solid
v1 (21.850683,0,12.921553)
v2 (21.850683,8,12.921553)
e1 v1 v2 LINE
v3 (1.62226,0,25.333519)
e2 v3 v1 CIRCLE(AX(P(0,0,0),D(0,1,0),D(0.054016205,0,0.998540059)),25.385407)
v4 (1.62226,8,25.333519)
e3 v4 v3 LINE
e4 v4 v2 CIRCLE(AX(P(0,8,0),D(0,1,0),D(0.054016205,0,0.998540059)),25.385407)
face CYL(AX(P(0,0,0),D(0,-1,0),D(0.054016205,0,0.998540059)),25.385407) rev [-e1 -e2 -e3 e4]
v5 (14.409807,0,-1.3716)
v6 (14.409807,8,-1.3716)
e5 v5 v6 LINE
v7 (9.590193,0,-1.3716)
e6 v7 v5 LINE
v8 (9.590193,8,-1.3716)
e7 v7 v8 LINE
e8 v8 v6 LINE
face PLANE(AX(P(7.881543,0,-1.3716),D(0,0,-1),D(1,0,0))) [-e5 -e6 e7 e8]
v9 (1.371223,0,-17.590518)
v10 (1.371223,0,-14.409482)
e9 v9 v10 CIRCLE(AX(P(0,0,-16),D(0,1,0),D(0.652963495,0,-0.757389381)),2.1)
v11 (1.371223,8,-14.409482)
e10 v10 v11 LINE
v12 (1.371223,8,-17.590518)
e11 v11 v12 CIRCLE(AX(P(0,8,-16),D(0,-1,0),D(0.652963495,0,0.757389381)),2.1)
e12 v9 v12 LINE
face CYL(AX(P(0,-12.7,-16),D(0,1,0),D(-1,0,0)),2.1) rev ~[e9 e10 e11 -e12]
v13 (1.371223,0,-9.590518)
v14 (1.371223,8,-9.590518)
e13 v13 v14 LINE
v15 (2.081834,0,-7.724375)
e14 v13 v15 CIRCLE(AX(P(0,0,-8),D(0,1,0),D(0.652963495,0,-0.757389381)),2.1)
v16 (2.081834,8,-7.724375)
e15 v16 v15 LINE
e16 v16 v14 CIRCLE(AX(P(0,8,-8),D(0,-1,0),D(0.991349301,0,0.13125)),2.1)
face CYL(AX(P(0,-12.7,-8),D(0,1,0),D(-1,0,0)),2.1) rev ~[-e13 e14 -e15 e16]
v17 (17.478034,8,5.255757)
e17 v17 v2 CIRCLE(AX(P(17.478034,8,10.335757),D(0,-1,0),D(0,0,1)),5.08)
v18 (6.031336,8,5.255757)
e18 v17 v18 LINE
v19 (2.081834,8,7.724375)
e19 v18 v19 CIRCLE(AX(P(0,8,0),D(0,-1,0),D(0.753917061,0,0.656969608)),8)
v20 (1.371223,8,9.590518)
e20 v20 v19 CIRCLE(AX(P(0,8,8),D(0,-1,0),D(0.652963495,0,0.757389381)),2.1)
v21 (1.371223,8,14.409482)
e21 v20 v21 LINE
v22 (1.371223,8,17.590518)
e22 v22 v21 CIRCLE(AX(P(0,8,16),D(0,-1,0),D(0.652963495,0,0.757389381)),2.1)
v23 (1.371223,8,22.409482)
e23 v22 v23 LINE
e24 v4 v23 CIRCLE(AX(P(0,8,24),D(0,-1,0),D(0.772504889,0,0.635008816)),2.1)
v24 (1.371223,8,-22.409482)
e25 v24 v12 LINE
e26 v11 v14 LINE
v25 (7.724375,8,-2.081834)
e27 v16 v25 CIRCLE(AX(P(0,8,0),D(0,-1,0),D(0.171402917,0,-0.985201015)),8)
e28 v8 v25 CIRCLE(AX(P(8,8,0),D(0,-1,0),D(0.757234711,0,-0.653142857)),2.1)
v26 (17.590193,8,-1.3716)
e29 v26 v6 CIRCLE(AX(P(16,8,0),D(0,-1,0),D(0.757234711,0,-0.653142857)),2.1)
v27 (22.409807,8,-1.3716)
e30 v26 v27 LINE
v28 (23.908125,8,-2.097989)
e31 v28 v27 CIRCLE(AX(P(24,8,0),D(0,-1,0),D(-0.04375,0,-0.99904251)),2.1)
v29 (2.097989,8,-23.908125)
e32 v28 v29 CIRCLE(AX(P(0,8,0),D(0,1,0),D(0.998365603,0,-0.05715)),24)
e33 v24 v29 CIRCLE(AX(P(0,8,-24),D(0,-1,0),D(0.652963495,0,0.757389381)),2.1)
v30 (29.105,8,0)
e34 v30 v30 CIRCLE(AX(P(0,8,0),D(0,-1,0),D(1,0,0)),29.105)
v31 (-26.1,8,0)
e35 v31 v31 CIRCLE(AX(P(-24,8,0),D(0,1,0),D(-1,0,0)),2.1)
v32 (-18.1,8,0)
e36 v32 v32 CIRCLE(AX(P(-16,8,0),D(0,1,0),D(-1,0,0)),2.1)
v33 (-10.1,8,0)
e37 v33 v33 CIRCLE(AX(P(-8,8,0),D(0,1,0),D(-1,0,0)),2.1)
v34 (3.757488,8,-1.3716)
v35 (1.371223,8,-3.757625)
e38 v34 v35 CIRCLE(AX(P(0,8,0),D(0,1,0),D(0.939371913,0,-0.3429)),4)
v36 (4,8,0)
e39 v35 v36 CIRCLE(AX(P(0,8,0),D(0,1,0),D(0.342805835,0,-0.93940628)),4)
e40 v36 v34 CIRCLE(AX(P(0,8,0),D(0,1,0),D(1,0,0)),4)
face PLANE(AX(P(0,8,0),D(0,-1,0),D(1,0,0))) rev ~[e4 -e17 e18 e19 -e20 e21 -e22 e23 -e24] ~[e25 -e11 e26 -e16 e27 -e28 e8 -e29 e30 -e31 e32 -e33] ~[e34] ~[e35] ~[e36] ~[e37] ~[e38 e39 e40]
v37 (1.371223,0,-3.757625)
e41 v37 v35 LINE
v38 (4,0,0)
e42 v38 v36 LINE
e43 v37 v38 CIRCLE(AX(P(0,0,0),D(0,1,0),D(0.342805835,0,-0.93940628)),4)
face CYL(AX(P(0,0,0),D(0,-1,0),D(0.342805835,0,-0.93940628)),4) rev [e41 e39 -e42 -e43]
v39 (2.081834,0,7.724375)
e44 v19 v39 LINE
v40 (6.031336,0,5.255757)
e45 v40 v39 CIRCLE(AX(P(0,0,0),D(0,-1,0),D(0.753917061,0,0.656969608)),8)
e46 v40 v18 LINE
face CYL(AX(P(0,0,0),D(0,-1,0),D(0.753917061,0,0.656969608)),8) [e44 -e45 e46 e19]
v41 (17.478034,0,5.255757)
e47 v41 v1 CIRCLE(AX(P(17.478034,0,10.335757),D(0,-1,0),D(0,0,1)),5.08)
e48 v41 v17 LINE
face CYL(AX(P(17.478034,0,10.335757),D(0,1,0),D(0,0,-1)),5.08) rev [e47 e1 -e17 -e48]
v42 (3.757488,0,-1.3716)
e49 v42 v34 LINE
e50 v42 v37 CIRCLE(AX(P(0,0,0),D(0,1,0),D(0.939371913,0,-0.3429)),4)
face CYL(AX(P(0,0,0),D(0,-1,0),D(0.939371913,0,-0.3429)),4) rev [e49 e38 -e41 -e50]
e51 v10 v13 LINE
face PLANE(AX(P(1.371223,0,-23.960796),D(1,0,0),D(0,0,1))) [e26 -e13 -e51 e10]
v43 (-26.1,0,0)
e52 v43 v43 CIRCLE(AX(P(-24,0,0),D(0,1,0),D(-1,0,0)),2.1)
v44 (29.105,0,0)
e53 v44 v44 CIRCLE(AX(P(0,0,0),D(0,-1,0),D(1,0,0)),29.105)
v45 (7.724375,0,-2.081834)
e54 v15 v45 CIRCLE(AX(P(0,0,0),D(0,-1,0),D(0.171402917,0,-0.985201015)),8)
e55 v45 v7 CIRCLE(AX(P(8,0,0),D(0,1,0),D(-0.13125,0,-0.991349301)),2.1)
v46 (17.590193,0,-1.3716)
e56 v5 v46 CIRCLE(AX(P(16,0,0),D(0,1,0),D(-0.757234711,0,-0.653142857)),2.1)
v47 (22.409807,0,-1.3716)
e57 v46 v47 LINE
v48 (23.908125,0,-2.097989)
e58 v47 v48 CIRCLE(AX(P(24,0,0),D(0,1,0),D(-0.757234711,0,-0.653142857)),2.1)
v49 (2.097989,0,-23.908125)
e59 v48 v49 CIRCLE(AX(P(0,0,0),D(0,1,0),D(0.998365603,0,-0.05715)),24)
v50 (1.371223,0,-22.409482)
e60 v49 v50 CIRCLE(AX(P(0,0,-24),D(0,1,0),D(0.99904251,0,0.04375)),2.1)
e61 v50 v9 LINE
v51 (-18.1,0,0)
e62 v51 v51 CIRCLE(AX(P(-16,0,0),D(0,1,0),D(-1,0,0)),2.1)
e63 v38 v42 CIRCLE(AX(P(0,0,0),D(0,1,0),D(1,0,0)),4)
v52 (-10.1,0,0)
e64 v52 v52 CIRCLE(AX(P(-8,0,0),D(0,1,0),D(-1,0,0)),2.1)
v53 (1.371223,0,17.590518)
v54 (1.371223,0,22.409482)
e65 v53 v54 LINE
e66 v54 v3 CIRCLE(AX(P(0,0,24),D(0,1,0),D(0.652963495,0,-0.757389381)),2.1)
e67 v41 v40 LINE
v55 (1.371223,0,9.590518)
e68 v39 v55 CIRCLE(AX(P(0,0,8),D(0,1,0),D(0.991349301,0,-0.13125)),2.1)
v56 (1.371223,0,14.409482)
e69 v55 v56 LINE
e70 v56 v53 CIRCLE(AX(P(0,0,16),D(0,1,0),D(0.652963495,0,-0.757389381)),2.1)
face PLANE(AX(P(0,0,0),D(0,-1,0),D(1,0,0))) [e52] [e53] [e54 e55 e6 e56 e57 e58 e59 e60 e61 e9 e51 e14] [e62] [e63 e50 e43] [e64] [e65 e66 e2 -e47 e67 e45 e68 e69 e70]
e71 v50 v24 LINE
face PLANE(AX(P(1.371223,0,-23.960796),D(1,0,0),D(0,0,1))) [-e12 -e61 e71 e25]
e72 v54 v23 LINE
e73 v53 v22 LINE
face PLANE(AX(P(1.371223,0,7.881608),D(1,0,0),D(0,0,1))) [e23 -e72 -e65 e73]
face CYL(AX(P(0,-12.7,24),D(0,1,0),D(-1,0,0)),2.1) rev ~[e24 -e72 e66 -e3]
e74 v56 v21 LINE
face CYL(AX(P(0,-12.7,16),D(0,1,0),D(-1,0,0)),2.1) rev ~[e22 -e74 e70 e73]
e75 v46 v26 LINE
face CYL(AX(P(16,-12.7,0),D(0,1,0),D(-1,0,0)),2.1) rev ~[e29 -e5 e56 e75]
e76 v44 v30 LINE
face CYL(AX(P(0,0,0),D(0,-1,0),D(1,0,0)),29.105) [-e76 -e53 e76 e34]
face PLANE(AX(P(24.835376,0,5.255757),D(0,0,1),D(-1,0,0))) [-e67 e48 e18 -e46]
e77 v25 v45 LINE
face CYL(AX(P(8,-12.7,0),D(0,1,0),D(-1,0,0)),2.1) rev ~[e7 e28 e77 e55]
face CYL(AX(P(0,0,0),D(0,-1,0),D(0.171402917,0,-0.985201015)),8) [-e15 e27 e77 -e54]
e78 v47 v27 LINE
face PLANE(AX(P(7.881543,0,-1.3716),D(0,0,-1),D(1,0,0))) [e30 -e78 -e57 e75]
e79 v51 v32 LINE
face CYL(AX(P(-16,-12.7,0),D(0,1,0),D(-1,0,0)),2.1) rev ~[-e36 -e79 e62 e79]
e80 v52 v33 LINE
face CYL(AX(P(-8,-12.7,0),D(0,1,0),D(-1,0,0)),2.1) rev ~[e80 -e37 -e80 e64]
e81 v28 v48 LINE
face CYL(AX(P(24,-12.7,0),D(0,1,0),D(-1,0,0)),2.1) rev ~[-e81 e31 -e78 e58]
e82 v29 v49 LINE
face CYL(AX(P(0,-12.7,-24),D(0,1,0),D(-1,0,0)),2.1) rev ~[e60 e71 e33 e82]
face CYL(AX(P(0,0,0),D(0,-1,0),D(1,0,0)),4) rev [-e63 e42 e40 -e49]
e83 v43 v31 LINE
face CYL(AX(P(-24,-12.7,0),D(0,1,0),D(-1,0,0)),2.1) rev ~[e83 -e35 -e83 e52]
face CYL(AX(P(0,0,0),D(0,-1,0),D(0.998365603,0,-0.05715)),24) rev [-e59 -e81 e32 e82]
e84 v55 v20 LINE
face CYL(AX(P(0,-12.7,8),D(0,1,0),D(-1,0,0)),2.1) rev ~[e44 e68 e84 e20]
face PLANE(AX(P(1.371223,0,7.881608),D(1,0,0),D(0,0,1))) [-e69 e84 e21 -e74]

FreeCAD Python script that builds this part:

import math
import FreeCAD as App
import Part
import Sketcher
Q = App.Units.Quantity


def edges_at(feature, points):
    """Names of the edges that pass closest to the given points."""
    edges = feature.Shape.Edges
    near = lambda p: min(range(len(edges)), key=lambda i: edges[i].distToShape(Part.Vertex(*p))[0])
    return sorted({f"Edge{near(p) + 1}" for p in points})

doc = App.newDocument("Part")
params = doc.addObject("Spreadsheet::Sheet", "Params")
for row, (alias, value) in enumerate([
    ("sketch1_radius", "8 mm"),
    ("sketch1_radius2", "24 mm"),
    ("sketch1_radius3", "4 mm"),
    ("sketch1_diameter", "58.21 mm"),
    ("pad1_length", "8 mm"),
    ("sketch2_diameter", "4.2 mm"),
    ("hole_diameter", "4.2 mm"),
    ("hole_depth", "12.7 mm"),
    ("fillet_radius", "5.08 mm"),
], start=1):
    params.set(f"A{row}", alias)
    params.set(f"B{row}", "=" + value)
    params.setAlias(f"B{row}", alias)

body = doc.addObject("PartDesign::Body", "Body")

sketch1 = body.newObject("Sketcher::SketchObject", "Sketch")
sketch1.AttachmentSupport = (doc.getObject("XZ_Plane"), [""])
sketch1.MapMode = "FlatFace"
sketch1.addGeometry([
    Part.Circle(App.Vector(0, 0, 0), App.Vector(0, 0, 1), 29.105),
    Part.LineSegment(App.Vector(1.371223, -23.960796, 0), App.Vector(1.371223, -7.881608, 0)),
    Part.ArcOfCircle(Part.Circle(App.Vector(0, 0, 0), App.Vector(0, 0, 1), 8), math.radians(-80.130602), math.radians(-9.872136)),
    Part.LineSegment(App.Vector(7.881543, -1.3716, 0), App.Vector(23.960774, -1.3716, 0)),
    Part.ArcOfCircle(Part.Circle(App.Vector(0, 0, 0), App.Vector(0, 0, 1), 24), math.radians(-86.724662), math.radians(-3.276239)),
    Part.ArcOfCircle(Part.Circle(App.Vector(0, 0, 0), App.Vector(0, 0, 1), 4), math.radians(0), math.radians(290.047913)),
    Part.ArcOfCircle(Part.Circle(App.Vector(0, 0, 0), App.Vector(0, 0, 1), 4), math.radians(-20.053657), math.radians(0)),
    Part.ArcOfCircle(Part.Circle(App.Vector(0, 0, 0), App.Vector(0, 0, 1), 4), math.radians(-69.952087), math.radians(-20.053657)),
    Part.LineSegment(App.Vector(1.371223, 7.881608, 0), App.Vector(1.371223, 25.348346, 0)),
    Part.ArcOfCircle(Part.Circle(App.Vector(0, 0, 0), App.Vector(0, 0, 1), 25.385407), math.radians(11.948858), math.radians(86.903592)),
    Part.LineSegment(App.Vector(24.835376, 5.255757, 0), App.Vector(6.031336, 5.255757, 0)),
    Part.ArcOfCircle(Part.Circle(App.Vector(0, 0, 0), App.Vector(0, 0, 1), 8), math.radians(41.069165), math.radians(80.130602)),
], False)
sketch1.addConstraint([
    Sketcher.Constraint("Coincident", 1, 2, 2, 1),
    Sketcher.Constraint("Coincident", 2, 2, 3, 1),
    Sketcher.Constraint("Coincident", 3, 2, 4, 2),
    Sketcher.Constraint("Coincident", 4, 1, 1, 1),
    Sketcher.Constraint("Tangent", 5, 1, 6, 2),
    Sketcher.Constraint("Tangent", 6, 1, 7, 2),
    Sketcher.Constraint("Tangent", 7, 1, 5, 2),
    Sketcher.Constraint("Coincident", 8, 2, 9, 2),
    Sketcher.Constraint("Coincident", 9, 1, 10, 1),
    Sketcher.Constraint("Coincident", 10, 2, 11, 1),
    Sketcher.Constraint("Coincident", 11, 2, 8, 1),
    Sketcher.Constraint("Vertical", 1),
    Sketcher.Constraint("Horizontal", 3),
    Sketcher.Constraint("Vertical", 8),
    Sketcher.Constraint("Horizontal", 10),
    Sketcher.Constraint("Coincident", 0, 3, -1, 1),
    Sketcher.Constraint("Coincident", 2, 3, -1, 1),
    Sketcher.Constraint("Coincident", 4, 3, -1, 1),
    Sketcher.Constraint("Coincident", 5, 3, -1, 1),
    Sketcher.Constraint("Coincident", 9, 3, -1, 1),
    Sketcher.Constraint("Coincident", 11, 3, -1, 1),
    Sketcher.Constraint("Equal", 2, 11),
    Sketcher.Constraint("PointOnObject", 5, 1, -1),
    Sketcher.Constraint("Horizontal", 3, 2, 6, 1),
    Sketcher.Constraint("Vertical", 4, 1, 7, 1),
    Sketcher.Constraint("Vertical", 7, 1, 8, 2),
    Sketcher.Constraint("Radius", 2, Q("8 mm")),
    Sketcher.Constraint("Radius", 4, Q("24 mm")),
    Sketcher.Constraint("Radius", 5, Q("4 mm")),
    Sketcher.Constraint("Diameter", 0, Q("58.21 mm")),
    Sketcher.Constraint("Radius", 9, Q("25.385407 mm")),
    Sketcher.Constraint("DistanceX", 3, 1, 3, 2, Q("16.079232 mm")),
    Sketcher.Constraint("DistanceX", 10, 2, 10, 1, Q("18.80404 mm")),
    Sketcher.Constraint("DistanceY", 1, 1, 1, 2, Q("16.079188 mm")),
])
sketch1.setExpression("Constraints[26]", "Params.sketch1_radius")
sketch1.setExpression("Constraints[27]", "Params.sketch1_radius2")
sketch1.setExpression("Constraints[28]", "Params.sketch1_radius3")
sketch1.setExpression("Constraints[29]", "Params.sketch1_diameter")
pad1 = body.newObject("PartDesign::Pad", "Pad")
pad1.Profile = sketch1
pad1.setExpression("Length", "Params.pad1_length")
pad1.Reversed = True

sketch2 = body.newObject("Sketcher::SketchObject", "Sketch001")
sketch2.AttachmentSupport = (doc.getObject("XZ_Plane"), [""])
sketch2.MapMode = "FlatFace"
sketch2.addGeometry([
    Part.Circle(App.Vector(0, 24, 0), App.Vector(0, 0, 1), 2.1),
    Part.Circle(App.Vector(24, 0, 0), App.Vector(0, 0, 1), 2.1),
    Part.Circle(App.Vector(0, -24, 0), App.Vector(0, 0, 1), 2.1),
    Part.Circle(App.Vector(-24, 0, 0), App.Vector(0, 0, 1), 2.1),
    Part.Circle(App.Vector(0, 16, 0), App.Vector(0, 0, 1), 2.1),
    Part.Circle(App.Vector(16, 0, 0), App.Vector(0, 0, 1), 2.1),
    Part.Circle(App.Vector(0, -16, 0), App.Vector(0, 0, 1), 2.1),
    Part.Circle(App.Vector(-16, 0, 0), App.Vector(0, 0, 1), 2.1),
    Part.Circle(App.Vector(0, 8, 0), App.Vector(0, 0, 1), 2.1),
    Part.Circle(App.Vector(8, 0, 0), App.Vector(0, 0, 1), 2.1),
    Part.Circle(App.Vector(0, -8, 0), App.Vector(0, 0, 1), 2.1),
    Part.Circle(App.Vector(-8, 0, 0), App.Vector(0, 0, 1), 2.1),
], False)
sketch2.addConstraint([
    Sketcher.Constraint("Equal", 0, 1),
    Sketcher.Constraint("Equal", 1, 2),
    Sketcher.Constraint("Equal", 2, 3),
    Sketcher.Constraint("Equal", 3, 4),
    Sketcher.Constraint("Equal", 4, 5),
    Sketcher.Constraint("Equal", 5, 6),
    Sketcher.Constraint("Equal", 6, 7),
    Sketcher.Constraint("Equal", 7, 8),
    Sketcher.Constraint("Equal", 8, 9),
    Sketcher.Constraint("Equal", 9, 10),
    Sketcher.Constraint("Equal", 10, 11),
    Sketcher.Constraint("Symmetric", 0, 3, 2, 3, -1, 1),
    Sketcher.Constraint("Symmetric", 1, 3, 3, 3, -1, 1),
    Sketcher.Constraint("Symmetric", 4, 3, 6, 3, -1, 1),
    Sketcher.Constraint("Symmetric", 5, 3, 7, 3, -1, 1),
    Sketcher.Constraint("Symmetric", 8, 3, 10, 3, -1, 1),
    Sketcher.Constraint("Symmetric", 9, 3, 11, 3, -1, 1),
    Sketcher.Constraint("PointOnObject", 0, 3, -2),
    Sketcher.Constraint("PointOnObject", 1, 3, -1),
    Sketcher.Constraint("PointOnObject", 4, 3, -2),
    Sketcher.Constraint("PointOnObject", 5, 3, -1),
    Sketcher.Constraint("PointOnObject", 8, 3, -2),
    Sketcher.Constraint("PointOnObject", 9, 3, -1),
    Sketcher.Constraint("Diameter", 0, Q("4.2 mm")),
    Sketcher.Constraint("DistanceY", -1, 1, 0, 3, Q("24 mm")),
    Sketcher.Constraint("DistanceX", -1, 1, 1, 3, Q("24 mm")),
    Sketcher.Constraint("DistanceY", -1, 1, 4, 3, Q("16 mm")),
    Sketcher.Constraint("DistanceX", -1, 1, 5, 3, Q("16 mm")),
    Sketcher.Constraint("DistanceY", -1, 1, 8, 3, Q("8 mm")),
    Sketcher.Constraint("DistanceX", -1, 1, 9, 3, Q("8 mm")),
])
sketch2.setExpression("Constraints[23]", "Params.sketch2_diameter")
doc.recompute()
hole = body.newObject("PartDesign::Hole", "Hole")
hole.Profile = sketch2
hole.ThreadType = "None"
hole.setExpression("Diameter", "Params.hole_diameter")
hole.DepthType = "Dimension"
hole.setExpression("Depth", "Params.hole_depth")
hole.DrillPoint = "Angled"
hole.DrillPointAngle = 118
doc.recompute()

fillet = body.newObject("PartDesign::Fillet", "Fillet")
fillet.Base = (hole, edges_at(hole, [(24.835, 4, 5.256)]))
fillet.setExpression("Radius", "Params.fillet_radius")

doc.recompute()
